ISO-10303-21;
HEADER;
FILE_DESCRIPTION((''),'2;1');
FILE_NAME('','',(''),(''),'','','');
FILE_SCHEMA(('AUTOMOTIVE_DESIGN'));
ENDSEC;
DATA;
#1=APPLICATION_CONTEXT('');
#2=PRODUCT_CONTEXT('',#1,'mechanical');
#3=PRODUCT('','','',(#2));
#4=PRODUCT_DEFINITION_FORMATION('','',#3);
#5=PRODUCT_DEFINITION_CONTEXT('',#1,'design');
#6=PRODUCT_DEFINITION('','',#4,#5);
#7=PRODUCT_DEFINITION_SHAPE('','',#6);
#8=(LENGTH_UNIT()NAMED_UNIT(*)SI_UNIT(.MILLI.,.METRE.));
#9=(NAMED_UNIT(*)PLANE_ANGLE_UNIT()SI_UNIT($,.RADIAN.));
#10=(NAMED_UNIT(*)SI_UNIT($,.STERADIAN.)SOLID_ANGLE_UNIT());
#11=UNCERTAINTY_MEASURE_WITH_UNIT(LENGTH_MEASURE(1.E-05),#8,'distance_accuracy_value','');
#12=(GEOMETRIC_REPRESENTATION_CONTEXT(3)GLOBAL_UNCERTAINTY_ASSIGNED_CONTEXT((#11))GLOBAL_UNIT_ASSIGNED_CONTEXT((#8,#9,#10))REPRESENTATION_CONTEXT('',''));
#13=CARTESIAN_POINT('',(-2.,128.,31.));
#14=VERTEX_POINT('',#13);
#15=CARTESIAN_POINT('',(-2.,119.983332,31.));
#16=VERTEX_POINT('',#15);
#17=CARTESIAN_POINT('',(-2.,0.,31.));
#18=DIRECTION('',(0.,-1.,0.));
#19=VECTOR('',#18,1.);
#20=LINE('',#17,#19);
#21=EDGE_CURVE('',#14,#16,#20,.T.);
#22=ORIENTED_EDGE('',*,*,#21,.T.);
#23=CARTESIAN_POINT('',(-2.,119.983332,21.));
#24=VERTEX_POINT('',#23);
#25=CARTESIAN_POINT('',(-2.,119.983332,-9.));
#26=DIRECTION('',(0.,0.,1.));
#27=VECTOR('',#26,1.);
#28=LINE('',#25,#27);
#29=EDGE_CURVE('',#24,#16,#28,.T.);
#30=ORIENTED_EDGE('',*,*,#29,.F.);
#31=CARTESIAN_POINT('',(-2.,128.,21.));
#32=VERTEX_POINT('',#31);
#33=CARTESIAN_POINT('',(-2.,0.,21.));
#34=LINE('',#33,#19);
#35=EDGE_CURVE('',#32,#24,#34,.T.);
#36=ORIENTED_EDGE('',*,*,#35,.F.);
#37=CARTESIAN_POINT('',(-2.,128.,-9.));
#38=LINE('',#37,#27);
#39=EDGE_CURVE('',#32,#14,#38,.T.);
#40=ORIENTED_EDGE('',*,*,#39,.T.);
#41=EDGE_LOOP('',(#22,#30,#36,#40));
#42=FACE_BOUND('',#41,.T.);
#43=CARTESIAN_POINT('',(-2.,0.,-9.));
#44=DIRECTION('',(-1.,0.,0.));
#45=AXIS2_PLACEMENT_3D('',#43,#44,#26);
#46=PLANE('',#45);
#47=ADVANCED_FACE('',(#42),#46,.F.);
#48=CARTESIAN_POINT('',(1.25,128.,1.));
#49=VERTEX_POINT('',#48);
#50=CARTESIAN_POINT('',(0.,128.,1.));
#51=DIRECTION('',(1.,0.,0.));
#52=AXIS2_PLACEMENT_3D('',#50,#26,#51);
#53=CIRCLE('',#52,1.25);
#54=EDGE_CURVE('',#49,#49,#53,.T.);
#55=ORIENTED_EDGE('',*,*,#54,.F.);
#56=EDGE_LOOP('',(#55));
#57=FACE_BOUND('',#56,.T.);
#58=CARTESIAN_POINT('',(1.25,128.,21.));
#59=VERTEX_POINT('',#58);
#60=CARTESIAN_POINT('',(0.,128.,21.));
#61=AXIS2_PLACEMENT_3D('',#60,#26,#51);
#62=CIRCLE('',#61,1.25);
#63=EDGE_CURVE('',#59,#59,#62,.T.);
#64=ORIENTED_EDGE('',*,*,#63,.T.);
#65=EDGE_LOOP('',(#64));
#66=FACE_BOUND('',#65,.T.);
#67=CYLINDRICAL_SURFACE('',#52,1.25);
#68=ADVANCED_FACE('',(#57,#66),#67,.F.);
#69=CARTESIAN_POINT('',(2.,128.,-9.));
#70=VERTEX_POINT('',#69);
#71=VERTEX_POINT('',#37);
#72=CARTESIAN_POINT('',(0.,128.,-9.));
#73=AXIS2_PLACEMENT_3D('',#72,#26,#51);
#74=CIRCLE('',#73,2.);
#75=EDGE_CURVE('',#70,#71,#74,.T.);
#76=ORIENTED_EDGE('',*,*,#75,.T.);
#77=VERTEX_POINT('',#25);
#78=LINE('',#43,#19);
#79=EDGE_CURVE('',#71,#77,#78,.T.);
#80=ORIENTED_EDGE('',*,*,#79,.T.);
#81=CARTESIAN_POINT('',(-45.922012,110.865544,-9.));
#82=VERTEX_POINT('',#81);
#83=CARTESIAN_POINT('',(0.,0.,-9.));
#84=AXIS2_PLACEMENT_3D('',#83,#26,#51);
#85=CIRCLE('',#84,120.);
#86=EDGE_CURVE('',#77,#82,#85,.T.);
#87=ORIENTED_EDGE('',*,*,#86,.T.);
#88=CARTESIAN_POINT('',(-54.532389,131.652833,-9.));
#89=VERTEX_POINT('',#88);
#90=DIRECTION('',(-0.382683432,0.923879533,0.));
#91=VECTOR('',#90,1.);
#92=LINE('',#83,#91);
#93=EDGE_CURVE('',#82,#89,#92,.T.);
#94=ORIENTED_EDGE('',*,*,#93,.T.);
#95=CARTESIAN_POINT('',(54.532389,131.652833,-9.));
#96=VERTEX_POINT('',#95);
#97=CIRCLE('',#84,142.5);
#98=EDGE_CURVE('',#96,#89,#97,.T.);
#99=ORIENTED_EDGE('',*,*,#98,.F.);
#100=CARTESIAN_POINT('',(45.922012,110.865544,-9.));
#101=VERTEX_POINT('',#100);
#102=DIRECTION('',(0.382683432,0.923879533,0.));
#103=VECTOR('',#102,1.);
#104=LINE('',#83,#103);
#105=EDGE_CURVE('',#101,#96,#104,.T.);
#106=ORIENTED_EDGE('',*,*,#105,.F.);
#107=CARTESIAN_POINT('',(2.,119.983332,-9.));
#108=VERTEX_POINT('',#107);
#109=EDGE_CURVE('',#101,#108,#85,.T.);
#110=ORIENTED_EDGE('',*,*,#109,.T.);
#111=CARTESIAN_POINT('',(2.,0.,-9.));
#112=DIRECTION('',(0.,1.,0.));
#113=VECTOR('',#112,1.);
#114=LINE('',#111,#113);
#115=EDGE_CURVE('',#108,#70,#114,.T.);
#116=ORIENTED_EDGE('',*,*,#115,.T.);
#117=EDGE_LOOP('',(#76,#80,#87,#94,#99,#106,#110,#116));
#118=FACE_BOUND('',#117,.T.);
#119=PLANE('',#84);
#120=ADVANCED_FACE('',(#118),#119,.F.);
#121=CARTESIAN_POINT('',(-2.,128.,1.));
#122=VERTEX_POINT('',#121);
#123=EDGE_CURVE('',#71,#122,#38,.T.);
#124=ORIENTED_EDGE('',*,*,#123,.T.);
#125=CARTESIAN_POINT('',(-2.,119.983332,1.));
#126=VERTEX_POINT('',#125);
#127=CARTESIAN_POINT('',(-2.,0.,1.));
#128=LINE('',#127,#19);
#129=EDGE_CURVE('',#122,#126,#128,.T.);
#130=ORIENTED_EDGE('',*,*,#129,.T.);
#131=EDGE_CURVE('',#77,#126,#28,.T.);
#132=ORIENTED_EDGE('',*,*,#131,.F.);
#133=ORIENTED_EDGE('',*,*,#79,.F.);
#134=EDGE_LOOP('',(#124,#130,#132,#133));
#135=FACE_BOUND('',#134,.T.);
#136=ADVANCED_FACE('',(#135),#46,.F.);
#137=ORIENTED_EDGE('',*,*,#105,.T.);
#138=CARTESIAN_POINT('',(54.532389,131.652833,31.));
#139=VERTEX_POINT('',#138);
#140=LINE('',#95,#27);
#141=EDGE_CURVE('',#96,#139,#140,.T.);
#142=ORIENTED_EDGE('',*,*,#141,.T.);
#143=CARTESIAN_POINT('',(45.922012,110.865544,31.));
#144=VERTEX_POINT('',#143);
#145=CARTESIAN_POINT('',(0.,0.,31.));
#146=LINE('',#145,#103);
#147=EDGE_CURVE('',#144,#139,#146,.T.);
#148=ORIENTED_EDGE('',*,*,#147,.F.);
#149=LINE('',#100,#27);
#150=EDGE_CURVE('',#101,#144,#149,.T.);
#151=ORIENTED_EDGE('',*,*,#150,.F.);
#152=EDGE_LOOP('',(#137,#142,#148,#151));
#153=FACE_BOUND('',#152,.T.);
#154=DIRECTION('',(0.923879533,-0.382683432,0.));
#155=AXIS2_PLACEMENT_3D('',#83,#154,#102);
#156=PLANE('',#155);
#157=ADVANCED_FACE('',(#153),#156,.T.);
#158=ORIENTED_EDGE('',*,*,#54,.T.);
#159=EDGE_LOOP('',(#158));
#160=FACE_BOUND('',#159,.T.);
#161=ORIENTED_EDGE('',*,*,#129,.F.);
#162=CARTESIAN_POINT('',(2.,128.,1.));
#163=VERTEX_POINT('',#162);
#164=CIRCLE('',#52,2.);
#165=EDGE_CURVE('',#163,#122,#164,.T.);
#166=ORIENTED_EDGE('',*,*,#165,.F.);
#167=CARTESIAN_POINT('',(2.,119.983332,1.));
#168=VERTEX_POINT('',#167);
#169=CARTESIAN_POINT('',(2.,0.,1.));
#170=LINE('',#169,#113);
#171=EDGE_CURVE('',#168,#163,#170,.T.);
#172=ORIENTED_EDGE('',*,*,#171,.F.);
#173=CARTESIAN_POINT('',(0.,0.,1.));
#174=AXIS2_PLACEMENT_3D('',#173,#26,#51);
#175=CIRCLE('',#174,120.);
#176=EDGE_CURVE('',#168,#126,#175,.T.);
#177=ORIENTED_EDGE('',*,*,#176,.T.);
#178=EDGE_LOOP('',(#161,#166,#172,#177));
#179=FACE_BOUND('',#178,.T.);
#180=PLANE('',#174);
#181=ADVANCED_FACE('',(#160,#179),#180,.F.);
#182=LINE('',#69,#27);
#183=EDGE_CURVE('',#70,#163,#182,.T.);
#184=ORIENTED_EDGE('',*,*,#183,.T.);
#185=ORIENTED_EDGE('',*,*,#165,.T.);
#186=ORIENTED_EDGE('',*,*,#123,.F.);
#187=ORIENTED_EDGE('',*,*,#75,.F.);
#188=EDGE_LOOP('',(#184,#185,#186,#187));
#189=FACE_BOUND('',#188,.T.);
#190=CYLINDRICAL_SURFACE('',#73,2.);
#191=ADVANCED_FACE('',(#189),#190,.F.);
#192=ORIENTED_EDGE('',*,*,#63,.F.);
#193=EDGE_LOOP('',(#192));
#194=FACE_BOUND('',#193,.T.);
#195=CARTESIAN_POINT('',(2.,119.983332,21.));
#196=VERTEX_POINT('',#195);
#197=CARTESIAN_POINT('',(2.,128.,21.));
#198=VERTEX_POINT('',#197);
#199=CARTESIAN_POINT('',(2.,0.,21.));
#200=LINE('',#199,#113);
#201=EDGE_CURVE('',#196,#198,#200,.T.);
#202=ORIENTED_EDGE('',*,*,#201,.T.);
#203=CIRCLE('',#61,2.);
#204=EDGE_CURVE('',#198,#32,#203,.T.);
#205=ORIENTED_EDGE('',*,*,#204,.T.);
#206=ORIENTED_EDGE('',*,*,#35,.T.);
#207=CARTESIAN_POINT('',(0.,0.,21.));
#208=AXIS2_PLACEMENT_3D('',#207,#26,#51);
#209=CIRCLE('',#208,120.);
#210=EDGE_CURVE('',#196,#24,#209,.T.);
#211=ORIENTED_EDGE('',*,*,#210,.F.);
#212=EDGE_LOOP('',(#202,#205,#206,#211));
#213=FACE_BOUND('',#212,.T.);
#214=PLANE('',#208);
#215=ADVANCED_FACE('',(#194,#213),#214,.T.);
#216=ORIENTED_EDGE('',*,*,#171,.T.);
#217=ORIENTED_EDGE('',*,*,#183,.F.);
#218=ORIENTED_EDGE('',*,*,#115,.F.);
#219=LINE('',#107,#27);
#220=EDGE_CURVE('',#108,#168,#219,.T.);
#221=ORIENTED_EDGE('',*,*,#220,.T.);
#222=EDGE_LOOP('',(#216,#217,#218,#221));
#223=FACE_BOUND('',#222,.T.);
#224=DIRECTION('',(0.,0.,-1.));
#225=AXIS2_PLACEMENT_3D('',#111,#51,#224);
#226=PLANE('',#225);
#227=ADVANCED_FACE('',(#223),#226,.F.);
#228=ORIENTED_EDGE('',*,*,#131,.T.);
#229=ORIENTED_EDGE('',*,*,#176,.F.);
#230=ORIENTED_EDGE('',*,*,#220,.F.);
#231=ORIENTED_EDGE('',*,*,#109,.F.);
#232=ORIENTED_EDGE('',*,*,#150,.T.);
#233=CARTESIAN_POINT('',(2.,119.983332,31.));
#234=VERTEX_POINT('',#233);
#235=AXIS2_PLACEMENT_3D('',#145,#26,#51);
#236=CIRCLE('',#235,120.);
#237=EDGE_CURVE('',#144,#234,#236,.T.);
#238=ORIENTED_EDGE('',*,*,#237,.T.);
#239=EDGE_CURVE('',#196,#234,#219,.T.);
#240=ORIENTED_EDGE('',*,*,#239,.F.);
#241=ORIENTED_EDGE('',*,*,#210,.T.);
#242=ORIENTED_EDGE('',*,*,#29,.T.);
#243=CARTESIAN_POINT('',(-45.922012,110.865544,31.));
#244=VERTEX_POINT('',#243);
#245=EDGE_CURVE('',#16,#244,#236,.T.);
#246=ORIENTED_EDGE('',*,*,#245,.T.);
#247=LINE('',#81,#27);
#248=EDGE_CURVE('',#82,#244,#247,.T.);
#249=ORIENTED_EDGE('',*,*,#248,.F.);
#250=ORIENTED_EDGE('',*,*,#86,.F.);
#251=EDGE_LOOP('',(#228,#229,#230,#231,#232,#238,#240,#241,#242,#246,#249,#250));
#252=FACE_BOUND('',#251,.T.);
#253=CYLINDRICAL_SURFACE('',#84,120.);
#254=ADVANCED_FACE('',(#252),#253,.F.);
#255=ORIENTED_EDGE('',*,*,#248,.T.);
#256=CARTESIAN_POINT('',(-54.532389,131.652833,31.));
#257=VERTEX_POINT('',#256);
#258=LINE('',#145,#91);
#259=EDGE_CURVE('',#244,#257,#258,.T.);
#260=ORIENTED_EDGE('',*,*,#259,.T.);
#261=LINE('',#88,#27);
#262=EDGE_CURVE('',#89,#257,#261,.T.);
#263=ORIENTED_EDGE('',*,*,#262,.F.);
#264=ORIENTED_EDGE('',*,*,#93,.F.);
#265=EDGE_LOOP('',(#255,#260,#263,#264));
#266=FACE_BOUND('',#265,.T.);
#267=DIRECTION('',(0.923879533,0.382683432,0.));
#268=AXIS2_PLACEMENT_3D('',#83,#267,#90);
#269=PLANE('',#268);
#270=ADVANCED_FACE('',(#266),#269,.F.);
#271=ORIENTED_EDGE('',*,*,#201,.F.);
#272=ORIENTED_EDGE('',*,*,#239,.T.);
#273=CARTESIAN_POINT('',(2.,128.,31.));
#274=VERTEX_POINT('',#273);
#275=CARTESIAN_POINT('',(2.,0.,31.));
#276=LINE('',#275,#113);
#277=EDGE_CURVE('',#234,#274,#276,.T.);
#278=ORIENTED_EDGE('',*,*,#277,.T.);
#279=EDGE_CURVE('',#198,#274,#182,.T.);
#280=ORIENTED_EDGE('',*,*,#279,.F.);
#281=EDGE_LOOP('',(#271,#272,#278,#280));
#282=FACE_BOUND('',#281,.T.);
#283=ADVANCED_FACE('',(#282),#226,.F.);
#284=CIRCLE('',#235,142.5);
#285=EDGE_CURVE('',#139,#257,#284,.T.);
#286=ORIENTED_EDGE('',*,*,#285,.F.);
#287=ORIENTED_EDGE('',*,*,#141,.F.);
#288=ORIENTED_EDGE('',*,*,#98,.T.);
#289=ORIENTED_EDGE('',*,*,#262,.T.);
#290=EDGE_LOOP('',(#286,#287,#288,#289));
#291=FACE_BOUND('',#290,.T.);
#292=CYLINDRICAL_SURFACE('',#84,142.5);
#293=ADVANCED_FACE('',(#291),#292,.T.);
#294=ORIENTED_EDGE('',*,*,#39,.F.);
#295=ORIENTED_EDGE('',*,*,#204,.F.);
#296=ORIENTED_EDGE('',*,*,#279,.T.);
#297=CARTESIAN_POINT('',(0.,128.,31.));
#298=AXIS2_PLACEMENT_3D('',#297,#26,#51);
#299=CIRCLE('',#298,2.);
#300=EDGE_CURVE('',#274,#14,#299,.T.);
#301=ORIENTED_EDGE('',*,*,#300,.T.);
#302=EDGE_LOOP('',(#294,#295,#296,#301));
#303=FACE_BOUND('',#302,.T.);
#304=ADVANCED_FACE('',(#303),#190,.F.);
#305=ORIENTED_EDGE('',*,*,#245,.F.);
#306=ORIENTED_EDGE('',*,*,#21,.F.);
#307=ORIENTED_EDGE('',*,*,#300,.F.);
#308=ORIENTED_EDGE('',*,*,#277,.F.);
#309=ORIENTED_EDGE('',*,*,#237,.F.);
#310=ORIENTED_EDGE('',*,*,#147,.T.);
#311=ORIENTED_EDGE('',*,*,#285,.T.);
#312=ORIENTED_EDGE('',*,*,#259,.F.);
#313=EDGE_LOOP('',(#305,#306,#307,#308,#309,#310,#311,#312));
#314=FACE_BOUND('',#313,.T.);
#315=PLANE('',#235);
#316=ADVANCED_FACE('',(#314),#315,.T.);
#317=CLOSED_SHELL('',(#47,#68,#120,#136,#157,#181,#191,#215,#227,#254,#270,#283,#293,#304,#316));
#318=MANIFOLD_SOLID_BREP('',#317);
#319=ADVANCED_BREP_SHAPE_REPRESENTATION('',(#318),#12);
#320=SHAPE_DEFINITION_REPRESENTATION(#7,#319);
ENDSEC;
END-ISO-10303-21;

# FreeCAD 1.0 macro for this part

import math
import FreeCAD as App
import Part
import Sketcher
from FreeCAD import Vector
Q = App.Units.Quantity

doc = App.newDocument("Part")
body = doc.addObject("PartDesign::Body", "Body")

sketch1 = body.newObject("Sketcher::SketchObject", "Sketch")
sketch1.AttachmentSupport = (doc.getObject("XY_Plane"), [""])
sketch1.MapMode = "FlatFace"
sketch1.AttachmentOffset = App.Placement(Vector(0, 0, 11), App.Rotation())
sketch1.addGeometry([
    Part.ArcOfCircle(Part.Circle(Vector(0, 0, 0), Vector(0, 0, 1), 120), math.radians(67.5), math.radians(89.045026)),
    Part.LineSegment(Vector(45.922012, 110.865544, 0), Vector(54.532389, 131.652833, 0)),
    Part.ArcOfCircle(Part.Circle(Vector(0, 0, 0), Vector(0, 0, 1), 142.5), math.radians(67.5), math.radians(112.5)),
    Part.LineSegment(Vector(-54.532389, 131.652833, 0), Vector(-45.922012, 110.865544, 0)),
    Part.ArcOfCircle(Part.Circle(Vector(0, 0, 0), Vector(0, 0, 1), 120), math.radians(90.954974), math.radians(112.5)),
    Part.LineSegment(Vector(-2, 119.983332, 0), Vector(-2, 128, 0)),
    Part.ArcOfCircle(Part.Circle(Vector(0, 128, 0), Vector(0, 0, 1), 2), math.radians(0), math.radians(180)),
    Part.LineSegment(Vector(2, 128, 0), Vector(2, 119.983332, 0)),
], False)
sketch1.addConstraint([
    Sketcher.Constraint("Coincident", 0, 1, 1, 1),
    Sketcher.Constraint("Coincident", 1, 2, 2, 1),
    Sketcher.Constraint("Coincident", 2, 2, 3, 1),
    Sketcher.Constraint("Coincident", 3, 2, 4, 2),
    Sketcher.Constraint("Coincident", 4, 1, 5, 1),
    Sketcher.Constraint("Tangent", 5, 2, 6, 2),
    Sketcher.Constraint("Tangent", 6, 1, 7, 1),
    Sketcher.Constraint("Coincident", 7, 2, 0, 2),
    Sketcher.Constraint("Vertical", 5),
    Sketcher.Constraint("Vertical", 7),
    Sketcher.Constraint("Coincident", 0, 3, -1, 1),
    Sketcher.Constraint("Coincident", 2, 3, -1, 1),
    Sketcher.Constraint("Coincident", 4, 3, -1, 1),
    Sketcher.Constraint("Equal", 0, 4),
    Sketcher.Constraint("PointOnObject", 6, 3, -2),
    Sketcher.Constraint("Horizontal", 1, 2, 2, 2),
    Sketcher.Constraint("Horizontal", 0, 1, 3, 2),
    Sketcher.Constraint("Radius", 0, 120.0),
    Sketcher.Constraint("Radius", 6, 2.0),
    Sketcher.Constraint("Radius", 2, 142.5),
    Sketcher.Constraint("DistanceY", -1, 1, 6, 3, 128.0),
    Sketcher.Constraint("Angle", 1, Q("67.5 deg")),
    Sketcher.Constraint("DistanceX", 2, 2, 0, 1, 100.454401),
])
pad1 = body.newObject("PartDesign::Pad", "Pad")
pad1.Profile = sketch1
pad1.Type = "TwoLengths"
pad1.Length = 20
pad1.Length2 = 20

sketch2 = body.newObject("Sketcher::SketchObject", "Sketch001")
sketch2.AttachmentSupport = (doc.getObject("XY_Plane"), [""])
sketch2.MapMode = "FlatFace"
sketch2.AttachmentOffset = App.Placement(Vector(0, 0, 11), App.Rotation())
sketch2.addGeometry([
    Part.ArcOfCircle(Part.Circle(Vector(0, -0.000002, 0), Vector(0, 0, 1), 120.000002), math.radians(89.045026), math.radians(90.954974)),
    Part.LineSegment(Vector(2, 119.983332, 0), Vector(2, 128, 0)),
    Part.ArcOfCircle(Part.Circle(Vector(0, 128, 0), Vector(0, 0, 1), 2), math.radians(0), math.radians(180)),
    Part.LineSegment(Vector(-2, 128, 0), Vector(-2, 119.983332, 0)),
    Part.Circle(Vector(0, 128, 0), Vector(0, 0, 1), 1.25),
], False)
sketch2.addConstraint([
    Sketcher.Constraint("Coincident", 0, 1, 1, 1),
    Sketcher.Constraint("Tangent", 1, 2, 2, 1),
    Sketcher.Constraint("Tangent", 2, 2, 3, 1),
    Sketcher.Constraint("Coincident", 3, 2, 0, 2),
    Sketcher.Constraint("Vertical", 1),
    Sketcher.Constraint("Vertical", 3),
    Sketcher.Constraint("Coincident", 0, 3, -1, 1),
    Sketcher.Constraint("Coincident", 4, 3, 2, 3),
    Sketcher.Constraint("PointOnObject", 2, 3, -2),
    Sketcher.Constraint("Radius", 0, 120.000002),
    Sketcher.Constraint("Radius", 2, 2.0),
    Sketcher.Constraint("Diameter", 4, 2.5),
    Sketcher.Constraint("DistanceY", -1, 1, 2, 3, 128.0),
])
pad2 = body.newObject("PartDesign::Pad", "Pad001")
pad2.Profile = sketch2
pad2.Type = "TwoLengths"
pad2.Length = 10
pad2.Length2 = 10

doc.recompute()
